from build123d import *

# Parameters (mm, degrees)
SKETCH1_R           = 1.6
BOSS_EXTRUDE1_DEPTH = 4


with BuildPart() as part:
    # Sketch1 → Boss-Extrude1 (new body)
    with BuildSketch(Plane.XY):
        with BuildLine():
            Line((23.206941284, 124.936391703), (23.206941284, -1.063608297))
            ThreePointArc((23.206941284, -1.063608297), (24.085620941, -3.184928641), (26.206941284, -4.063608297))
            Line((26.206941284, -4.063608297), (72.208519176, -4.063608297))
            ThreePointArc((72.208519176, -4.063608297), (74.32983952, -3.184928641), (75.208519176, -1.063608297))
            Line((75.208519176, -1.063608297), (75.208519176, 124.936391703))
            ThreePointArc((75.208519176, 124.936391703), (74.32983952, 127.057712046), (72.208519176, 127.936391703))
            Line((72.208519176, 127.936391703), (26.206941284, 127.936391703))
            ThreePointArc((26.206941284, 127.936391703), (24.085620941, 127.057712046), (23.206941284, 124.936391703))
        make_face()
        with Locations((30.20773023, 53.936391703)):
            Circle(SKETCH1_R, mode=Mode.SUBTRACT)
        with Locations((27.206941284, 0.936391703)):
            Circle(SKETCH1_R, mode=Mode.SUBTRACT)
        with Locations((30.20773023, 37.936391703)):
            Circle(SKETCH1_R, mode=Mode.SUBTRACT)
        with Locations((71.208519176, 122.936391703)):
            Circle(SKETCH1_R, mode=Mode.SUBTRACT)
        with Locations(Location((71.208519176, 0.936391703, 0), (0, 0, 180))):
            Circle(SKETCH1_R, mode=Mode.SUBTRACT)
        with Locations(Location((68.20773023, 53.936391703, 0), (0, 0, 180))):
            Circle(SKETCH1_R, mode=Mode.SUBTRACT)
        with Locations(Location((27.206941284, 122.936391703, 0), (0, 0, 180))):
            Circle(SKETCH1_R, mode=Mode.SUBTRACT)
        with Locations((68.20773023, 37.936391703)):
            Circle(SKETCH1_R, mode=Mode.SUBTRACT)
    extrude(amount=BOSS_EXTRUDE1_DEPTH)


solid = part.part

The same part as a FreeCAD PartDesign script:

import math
import FreeCAD as App
import Part
import Sketcher

V = App.Vector

doc = App.newDocument("Part")
params = doc.addObject("Spreadsheet::Sheet", "Params")
for row, (alias, value) in enumerate([
    ("sketch1_radius", "3 mm"),
    ("sketch1_diameter", "3.2 mm"),
    ("sketch1_height", "126 mm"),
    ("pad1_length", "4 mm"),
], start=1):
    params.set(f"A{row}", alias)
    params.set(f"B{row}", "=" + value)
    params.setAlias(f"B{row}", alias)

body = doc.addObject("PartDesign::Body", "Body")

# Sketch on XY plane
sketch1 = body.newObject("Sketcher::SketchObject", "Sketch")
sketch1.AttachmentSupport = (doc.getObject("XY_Plane"), [""])
sketch1.MapMode = "FlatFace"
sketch1.addGeometry(Part.LineSegment(V(23.2, 124.9, 0), V(23.2, -1.1, 0)), False)
sketch1.addGeometry(Part.ArcOfCircle(Part.Circle(V(26.2, -1.1, 0), V(0, 0, 1), 3), math.radians(180), math.radians(270)), False)
sketch1.addGeometry(Part.LineSegment(V(26.2, -4.1, 0), V(72.2, -4.1, 0)), False)
sketch1.addGeometry(Part.ArcOfCircle(Part.Circle(V(72.2, -1.1, 0), V(0, 0, 1), 3), math.radians(-90), math.radians(0)), False)
sketch1.addGeometry(Part.LineSegment(V(75.2, -1.1, 0), V(75.2, 124.9, 0)), False)
sketch1.addGeometry(Part.ArcOfCircle(Part.Circle(V(72.2, 124.9, 0), V(0, 0, 1), 3), math.radians(0), math.radians(90)), False)
sketch1.addGeometry(Part.LineSegment(V(72.2, 127.9, 0), V(26.2, 127.9, 0)), False)
sketch1.addGeometry(Part.ArcOfCircle(Part.Circle(V(26.2, 124.9, 0), V(0, 0, 1), 3), math.radians(90), math.radians(180)), False)
sketch1.addGeometry(Part.Circle(V(27.2, 0.9, 0), V(0, 0, 1), 1.6), False)
sketch1.addGeometry(Part.Circle(V(30.2, 37.9, 0), V(0, 0, 1), 1.6), False)
sketch1.addGeometry(Part.Circle(V(30.2, 53.9, 0), V(0, 0, 1), 1.6), False)
sketch1.addGeometry(Part.Circle(V(71.2, 0.9, 0), V(0, 0, 1), 1.6), False)
sketch1.addGeometry(Part.Circle(V(68.2, 37.9, 0), V(0, 0, 1), 1.6), False)
sketch1.addGeometry(Part.Circle(V(68.2, 53.9, 0), V(0, 0, 1), 1.6), False)
sketch1.addGeometry(Part.Circle(V(27.2, 122.9, 0), V(0, 0, 1), 1.6), False)
sketch1.addGeometry(Part.Circle(V(71.2, 122.9, 0), V(0, 0, 1), 1.6), False)
sketch1.addConstraint(Sketcher.Constraint("Tangent", 0, 2, 1, 1))
sketch1.addConstraint(Sketcher.Constraint("Tangent", 1, 2, 2, 1))
sketch1.addConstraint(Sketcher.Constraint("Tangent", 2, 2, 3, 1))
sketch1.addConstraint(Sketcher.Constraint("Tangent", 3, 2, 4, 1))
sketch1.addConstraint(Sketcher.Constraint("Tangent", 4, 2, 5, 1))
sketch1.addConstraint(Sketcher.Constraint("Tangent", 5, 2, 6, 1))
sketch1.addConstraint(Sketcher.Constraint("Tangent", 6, 2, 7, 1))
sketch1.addConstraint(Sketcher.Constraint("Tangent", 7, 2, 0, 1))
sketch1.addConstraint(Sketcher.Constraint("Vertical", 0))
sketch1.addConstraint(Sketcher.Constraint("Horizontal", 2))
sketch1.addConstraint(Sketcher.Constraint("Vertical", 4))
sketch1.addConstraint(Sketcher.Constraint("Horizontal", 6))
sketch1.addConstraint(Sketcher.Constraint("Equal", 1, 3))
sketch1.addConstraint(Sketcher.Constraint("Equal", 3, 5))
sketch1.addConstraint(Sketcher.Constraint("Equal", 5, 7))
sketch1.addConstraint(Sketcher.Constraint("Equal", 8, 9))
sketch1.addConstraint(Sketcher.Constraint("Equal", 9, 10))
sketch1.addConstraint(Sketcher.Constraint("Equal", 10, 11))
sketch1.addConstraint(Sketcher.Constraint("Equal", 11, 12))
sketch1.addConstraint(Sketcher.Constraint("Equal", 12, 13))
sketch1.addConstraint(Sketcher.Constraint("Equal", 13, 14))
sketch1.addConstraint(Sketcher.Constraint("Equal", 14, 15))
sketch1.addConstraint(Sketcher.Constraint("Horizontal", 8, 3, 11, 3))
sketch1.addConstraint(Sketcher.Constraint("Horizontal", 9, 3, 12, 3))
sketch1.addConstraint(Sketcher.Constraint("Horizontal", 10, 3, 13, 3))
sketch1.addConstraint(Sketcher.Constraint("Horizontal", 14, 3, 15, 3))
sketch1.addConstraint(Sketcher.Constraint("Vertical", 9, 3, 10, 3))
sketch1.addConstraint(Sketcher.Constraint("Vertical", 12, 3, 13, 3))
sketch1.addConstraint(Sketcher.Constraint("Vertical", 8, 3, 14, 3))
sketch1.addConstraint(Sketcher.Constraint("Vertical", 11, 3, 15, 3))
sketch1.addConstraint(Sketcher.Constraint("Radius", 1, 3.0))
sketch1.addConstraint(Sketcher.Constraint("Diameter", 8, 3.2))
sketch1.addConstraint(Sketcher.Constraint("DistanceY", 0, 2, 0, 1, 126.0))
sketch1.addConstraint(Sketcher.Constraint("DistanceX", 1, 3, 8, 3, 1.0))
sketch1.addConstraint(Sketcher.Constraint("DistanceY", 1, 3, 8, 3, 2.0))
sketch1.addConstraint(Sketcher.Constraint("DistanceY", 8, 3, 9, 3, 37.0))
sketch1.addConstraint(Sketcher.Constraint("DistanceY", 9, 3, 10, 3, 16.0))
sketch1.addConstraint(Sketcher.Constraint("DistanceX", 11, 3, 3, 3, 1.0))
sketch1.addConstraint(Sketcher.Constraint("DistanceX", 9, 3, 12, 3, 38.0))
sketch1.addConstraint(Sketcher.Constraint("DistanceY", 14, 3, 7, 3, 2.0))
sketch1.addConstraint(Sketcher.Constraint("DistanceX", 2, 1, 2, 2, 46.001578))
sketch1.addConstraint(Sketcher.Constraint("DistanceX", -1, 1, 1, 3, 26.206941))
sketch1.addConstraint(Sketcher.Constraint("DistanceY", 1, 3, -1, 1, 1.063608))
sketch1.addConstraint(Sketcher.Constraint("DistanceX", -1, 1, 9, 3, 30.20773))
sketch1.setExpression("Constraints[30]", "Params.sketch1_radius")
sketch1.setExpression("Constraints[31]", "Params.sketch1_diameter")
sketch1.setExpression("Constraints[32]", "Params.sketch1_height")
pad1 = body.newObject("PartDesign::Pad", "Pad")
pad1.Profile = sketch1
pad1.setExpression("Length", "Params.pad1_length")

doc.recompute()
